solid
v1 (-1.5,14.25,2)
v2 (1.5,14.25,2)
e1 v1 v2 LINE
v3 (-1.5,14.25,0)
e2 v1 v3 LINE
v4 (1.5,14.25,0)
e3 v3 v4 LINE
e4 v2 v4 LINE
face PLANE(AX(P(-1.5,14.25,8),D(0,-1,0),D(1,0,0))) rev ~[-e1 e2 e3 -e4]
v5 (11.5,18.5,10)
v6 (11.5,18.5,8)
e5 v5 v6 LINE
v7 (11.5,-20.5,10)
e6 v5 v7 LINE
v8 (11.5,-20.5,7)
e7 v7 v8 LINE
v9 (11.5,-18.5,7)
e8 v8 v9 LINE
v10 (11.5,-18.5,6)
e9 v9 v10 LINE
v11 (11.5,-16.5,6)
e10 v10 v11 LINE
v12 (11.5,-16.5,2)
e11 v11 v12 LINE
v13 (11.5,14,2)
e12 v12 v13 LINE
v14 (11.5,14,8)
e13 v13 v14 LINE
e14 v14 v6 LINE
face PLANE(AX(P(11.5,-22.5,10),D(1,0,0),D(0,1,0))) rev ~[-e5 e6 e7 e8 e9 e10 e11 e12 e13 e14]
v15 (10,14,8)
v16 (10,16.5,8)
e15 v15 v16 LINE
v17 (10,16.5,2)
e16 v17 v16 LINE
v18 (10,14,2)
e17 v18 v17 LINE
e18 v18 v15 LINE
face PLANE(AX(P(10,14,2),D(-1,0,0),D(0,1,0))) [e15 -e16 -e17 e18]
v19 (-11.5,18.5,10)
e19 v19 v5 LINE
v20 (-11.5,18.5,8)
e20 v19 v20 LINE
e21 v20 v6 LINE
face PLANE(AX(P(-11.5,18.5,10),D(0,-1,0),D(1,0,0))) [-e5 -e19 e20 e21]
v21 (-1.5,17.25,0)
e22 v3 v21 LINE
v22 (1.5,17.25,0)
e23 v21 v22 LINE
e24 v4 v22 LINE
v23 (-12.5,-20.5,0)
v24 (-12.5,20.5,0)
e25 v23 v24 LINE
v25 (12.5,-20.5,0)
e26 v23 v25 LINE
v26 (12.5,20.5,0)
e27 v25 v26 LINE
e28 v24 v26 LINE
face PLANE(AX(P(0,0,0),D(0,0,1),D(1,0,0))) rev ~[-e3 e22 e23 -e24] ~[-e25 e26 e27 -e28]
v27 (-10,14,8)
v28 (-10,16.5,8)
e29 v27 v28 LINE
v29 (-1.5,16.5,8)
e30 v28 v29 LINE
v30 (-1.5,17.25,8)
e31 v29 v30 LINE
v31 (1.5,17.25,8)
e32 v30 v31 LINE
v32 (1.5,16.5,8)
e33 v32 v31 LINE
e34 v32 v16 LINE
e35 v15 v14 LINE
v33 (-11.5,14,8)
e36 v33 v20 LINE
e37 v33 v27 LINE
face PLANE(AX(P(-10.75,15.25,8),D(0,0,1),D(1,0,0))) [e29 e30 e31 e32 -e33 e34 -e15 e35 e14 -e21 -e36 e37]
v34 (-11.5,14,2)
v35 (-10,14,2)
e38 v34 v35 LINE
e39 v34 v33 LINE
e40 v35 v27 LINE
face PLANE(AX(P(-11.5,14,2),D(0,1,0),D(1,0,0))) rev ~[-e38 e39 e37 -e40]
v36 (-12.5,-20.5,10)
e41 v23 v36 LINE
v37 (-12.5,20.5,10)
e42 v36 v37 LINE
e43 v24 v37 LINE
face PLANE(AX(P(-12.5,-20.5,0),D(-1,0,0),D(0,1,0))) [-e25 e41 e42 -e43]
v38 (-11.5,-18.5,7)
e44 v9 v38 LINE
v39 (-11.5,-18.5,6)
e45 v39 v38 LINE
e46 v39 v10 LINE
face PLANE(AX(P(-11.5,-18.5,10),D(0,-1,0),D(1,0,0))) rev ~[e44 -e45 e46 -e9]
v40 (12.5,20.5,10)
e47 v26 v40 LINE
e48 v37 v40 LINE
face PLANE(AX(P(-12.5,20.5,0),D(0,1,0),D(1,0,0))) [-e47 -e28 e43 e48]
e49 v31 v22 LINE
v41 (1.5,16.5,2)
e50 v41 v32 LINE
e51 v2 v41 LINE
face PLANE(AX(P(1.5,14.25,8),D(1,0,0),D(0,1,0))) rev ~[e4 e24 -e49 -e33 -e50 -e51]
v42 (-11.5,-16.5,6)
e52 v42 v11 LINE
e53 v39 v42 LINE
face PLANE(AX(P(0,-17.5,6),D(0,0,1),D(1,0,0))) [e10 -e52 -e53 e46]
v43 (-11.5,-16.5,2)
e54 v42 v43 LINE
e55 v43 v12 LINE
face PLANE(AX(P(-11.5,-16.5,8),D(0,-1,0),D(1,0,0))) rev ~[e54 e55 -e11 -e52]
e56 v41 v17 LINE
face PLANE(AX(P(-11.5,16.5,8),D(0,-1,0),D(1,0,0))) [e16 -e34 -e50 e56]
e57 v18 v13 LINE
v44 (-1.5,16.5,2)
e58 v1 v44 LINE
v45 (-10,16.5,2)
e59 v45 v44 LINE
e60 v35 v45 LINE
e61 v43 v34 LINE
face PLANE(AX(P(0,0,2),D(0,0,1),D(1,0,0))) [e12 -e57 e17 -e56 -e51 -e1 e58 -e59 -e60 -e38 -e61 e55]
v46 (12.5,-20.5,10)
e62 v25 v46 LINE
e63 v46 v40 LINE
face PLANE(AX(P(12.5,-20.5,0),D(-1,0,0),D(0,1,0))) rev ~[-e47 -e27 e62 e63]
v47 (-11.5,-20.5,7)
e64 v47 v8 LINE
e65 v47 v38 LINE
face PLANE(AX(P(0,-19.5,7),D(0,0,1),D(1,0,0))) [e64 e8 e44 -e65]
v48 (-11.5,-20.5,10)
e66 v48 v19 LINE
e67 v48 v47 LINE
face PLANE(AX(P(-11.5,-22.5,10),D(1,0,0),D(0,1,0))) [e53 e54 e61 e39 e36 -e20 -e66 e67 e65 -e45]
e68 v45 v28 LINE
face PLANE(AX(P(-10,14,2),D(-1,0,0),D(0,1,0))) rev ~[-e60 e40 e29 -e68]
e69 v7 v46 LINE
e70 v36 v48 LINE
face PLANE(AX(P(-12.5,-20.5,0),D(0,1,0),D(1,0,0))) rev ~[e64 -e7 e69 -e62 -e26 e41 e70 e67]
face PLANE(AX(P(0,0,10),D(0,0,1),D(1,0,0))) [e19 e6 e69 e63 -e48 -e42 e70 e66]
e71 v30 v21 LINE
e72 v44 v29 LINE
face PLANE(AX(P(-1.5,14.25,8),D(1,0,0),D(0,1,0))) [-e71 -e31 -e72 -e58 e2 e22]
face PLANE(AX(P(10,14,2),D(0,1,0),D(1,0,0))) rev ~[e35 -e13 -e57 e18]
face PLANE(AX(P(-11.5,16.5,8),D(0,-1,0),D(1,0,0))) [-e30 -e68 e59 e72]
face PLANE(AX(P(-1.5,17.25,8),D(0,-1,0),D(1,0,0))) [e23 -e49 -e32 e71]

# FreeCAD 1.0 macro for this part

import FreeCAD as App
import Part
import Sketcher
from FreeCAD import Vector
Q = App.Units.Quantity

doc = App.newDocument("Part")
body = doc.addObject("PartDesign::Body", "Body")

sketch1 = doc.addObject("Sketcher::SketchObject", "Sketch")
body.addObject(sketch1)
sketch1.AttachmentSupport = (doc.XY_Plane, [""])
sketch1.MapMode = "FlatFace"
sketch1.addGeometry([
    Part.LineSegment(Vector(-12, 20, 0), Vector(-12, -20, 0)),
    Part.LineSegment(Vector(-12, -20, 0), Vector(12, -20, 0)),
    Part.LineSegment(Vector(12, -20, 0), Vector(12, 20, 0)),
    Part.LineSegment(Vector(12, 20, 0), Vector(-12, 20, 0)),
], False)
sketch1.addConstraint([
    Sketcher.Constraint("Coincident", 0, 2, 1, 1),
    Sketcher.Constraint("Coincident", 1, 2, 2, 1),
    Sketcher.Constraint("Coincident", 2, 2, 3, 1),
    Sketcher.Constraint("Coincident", 3, 2, 0, 1),
    Sketcher.Constraint("Vertical", 0),
    Sketcher.Constraint("Horizontal", 1),
    Sketcher.Constraint("Vertical", 2),
    Sketcher.Constraint("Horizontal", 3),
    Sketcher.Constraint("Symmetric", 0, 2, 2, 2, -1, 1),
    Sketcher.Constraint("DistanceX", 1, 1, 1, 2, Q("25 mm")),
    Sketcher.Constraint("DistanceY", 0, 2, 0, 1, Q("41 mm")),
])
pad1 = doc.addObject("PartDesign::Pad", "Pad")
body.addObject(pad1)
pad1.Profile = sketch1
pad1.Length = 10

sketch2 = doc.addObject("Sketcher::SketchObject", "Sketch001")
body.addObject(sketch2)
sketch2.AttachmentSupport = (doc.XY_Plane, [""])
sketch2.MapMode = "FlatFace"
sketch2.AttachmentOffset = App.Placement(Vector(0, 0, 10), App.Rotation())
sketch2.addGeometry([
    Part.LineSegment(Vector(-12, 18, 0), Vector(-12, -18, 0)),
    Part.LineSegment(Vector(-12, -18, 0), Vector(12, -18, 0)),
    Part.LineSegment(Vector(12, -18, 0), Vector(12, 18, 0)),
    Part.LineSegment(Vector(12, 18, 0), Vector(-12, 18, 0)),
], False)
sketch2.addConstraint([
    Sketcher.Constraint("Coincident", 0, 2, 1, 1),
    Sketcher.Constraint("Coincident", 1, 2, 2, 1),
    Sketcher.Constraint("Coincident", 2, 2, 3, 1),
    Sketcher.Constraint("Coincident", 3, 2, 0, 1),
    Sketcher.Constraint("Vertical", 0),
    Sketcher.Constraint("Horizontal", 1),
    Sketcher.Constraint("Vertical", 2),
    Sketcher.Constraint("Horizontal", 3),
    Sketcher.Constraint("Symmetric", 0, 2, 2, 2, -1, 1),
    Sketcher.Constraint("DistanceX", 1, 1, 1, 2, Q("23 mm")),
    Sketcher.Constraint("DistanceY", 0, 2, 0, 1, Q("37 mm")),
])
pocket1 = doc.addObject("PartDesign::Pocket", "Pocket")
body.addObject(pocket1)
pocket1.Profile = sketch2
pocket1.Length = 2

sketch3 = doc.addObject("Sketcher::SketchObject", "Sketch002")
body.addObject(sketch3)
sketch3.AttachmentSupport = (doc.XY_Plane, [""])
sketch3.MapMode = "FlatFace"
sketch3.AttachmentOffset = App.Placement(Vector(0, 0, 8), App.Rotation())
sketch3.addGeometry([
    Part.LineSegment(Vector(-12, 16, 0), Vector(-12, -16, 0)),
    Part.LineSegment(Vector(-12, -16, 0), Vector(12, -16, 0)),
    Part.LineSegment(Vector(12, -16, 0), Vector(12, 16, 0)),
    Part.LineSegment(Vector(12, 16, 0), Vector(-12, 16, 0)),
], False)
sketch3.addConstraint([
    Sketcher.Constraint("Coincident", 0, 2, 1, 1),
    Sketcher.Constraint("Coincident", 1, 2, 2, 1),
    Sketcher.Constraint("Coincident", 2, 2, 3, 1),
    Sketcher.Constraint("Coincident", 3, 2, 0, 1),
    Sketcher.Constraint("Vertical", 0),
    Sketcher.Constraint("Horizontal", 1),
    Sketcher.Constraint("Vertical", 2),
    Sketcher.Constraint("Horizontal", 3),
    Sketcher.Constraint("Symmetric", 0, 2, 2, 2, -1, 1),
    Sketcher.Constraint("DistanceX", 1, 1, 1, 2, Q("23 mm")),
    Sketcher.Constraint("DistanceY", 0, 2, 0, 1, Q("33 mm")),
])
pocket2 = doc.addObject("PartDesign::Pocket", "Pocket001")
body.addObject(pocket2)
pocket2.Profile = sketch3
pocket2.Length = 6

sketch4 = doc.addObject("Sketcher::SketchObject", "Sketch003")
body.addObject(sketch4)
sketch4.AttachmentSupport = (doc.XY_Plane, [""])
sketch4.MapMode = "FlatFace"
sketch4.AttachmentOffset = App.Placement(Vector(0, 0, 10), App.Rotation())
sketch4.addGeometry([
    Part.LineSegment(Vector(-11.5, -16.5, 0), Vector(-11.5, -18.5, 0)),
    Part.LineSegment(Vector(-11.5, -18.5, 0), Vector(11.5, -18.5, 0)),
    Part.LineSegment(Vector(11.5, -18.5, 0), Vector(11.5, -16.5, 0)),
    Part.LineSegment(Vector(11.5, -16.5, 0), Vector(-11.5, -16.5, 0)),
], False)
sketch4.addConstraint([
    Sketcher.Constraint("Coincident", 0, 2, 1, 1),
    Sketcher.Constraint("Coincident", 1, 2, 2, 1),
    Sketcher.Constraint("Coincident", 2, 2, 3, 1),
    Sketcher.Constraint("Coincident", 3, 2, 0, 1),
    Sketcher.Constraint("Vertical", 0),
    Sketcher.Constraint("Horizontal", 1),
    Sketcher.Constraint("Vertical", 2),
    Sketcher.Constraint("Horizontal", 3),
    Sketcher.Constraint("DistanceX", 1, 1, 1, 2, Q("23 mm")),
    Sketcher.Constraint("DistanceY", 0, 2, 0, 1, Q("2 mm")),
    Sketcher.Constraint("DistanceX", 0, 2, -1, 1, Q("11.5 mm")),
    Sketcher.Constraint("DistanceY", 0, 2, -1, 1, Q("18.5 mm")),
])
pocket3 = doc.addObject("PartDesign::Pocket", "Pocket002")
body.addObject(pocket3)
pocket3.Profile = sketch4
pocket3.Length = 4

sketch5 = doc.addObject("Sketcher::SketchObject", "Sketch004")
body.addObject(sketch5)
sketch5.AttachmentSupport = (doc.XY_Plane, [""])
sketch5.MapMode = "FlatFace"
sketch5.AttachmentOffset = App.Placement(Vector(0, 0, 10), App.Rotation())
sketch5.addGeometry([
    Part.LineSegment(Vector(-12, -16, 0), Vector(-12, -22, 0)),
    Part.LineSegment(Vector(-12, -22, 0), Vector(12, -22, 0)),
    Part.LineSegment(Vector(12, -22, 0), Vector(12, -16, 0)),
    Part.LineSegment(Vector(12, -16, 0), Vector(-12, -16, 0)),
], False)
sketch5.addConstraint([
    Sketcher.Constraint("Coincident", 0, 2, 1, 1),
    Sketcher.Constraint("Coincident", 1, 2, 2, 1),
    Sketcher.Constraint("Coincident", 2, 2, 3, 1),
    Sketcher.Constraint("Coincident", 3, 2, 0, 1),
    Sketcher.Constraint("Vertical", 0),
    Sketcher.Constraint("Horizontal", 1),
    Sketcher.Constraint("Vertical", 2),
    Sketcher.Constraint("Horizontal", 3),
    Sketcher.Constraint("DistanceX", 1, 1, 1, 2, Q("23 mm")),
    Sketcher.Constraint("DistanceY", 0, 2, 0, 1, Q("6 mm")),
    Sketcher.Constraint("DistanceX", 0, 2, -1, 1, Q("11.5 mm")),
    Sketcher.Constraint("DistanceY", 0, 2, -1, 1, Q("22.5 mm")),
])
pocket4 = doc.addObject("PartDesign::Pocket", "Pocket003")
body.addObject(pocket4)
pocket4.Profile = sketch5
pocket4.Length = 3

sketch6 = doc.addObject("Sketcher::SketchObject", "Sketch005")
body.addObject(sketch6)
sketch6.AttachmentSupport = (doc.XY_Plane, [""])
sketch6.MapMode = "FlatFace"
sketch6.AttachmentOffset = App.Placement(Vector(0, 0, 8), App.Rotation())
sketch6.addGeometry([
    Part.LineSegment(Vector(-1.5, 17.2, 0), Vector(-1.5, 14.2, 0)),
    Part.LineSegment(Vector(-1.5, 14.2, 0), Vector(1.5, 14.2, 0)),
    Part.LineSegment(Vector(1.5, 14.2, 0), Vector(1.5, 17.2, 0)),
    Part.LineSegment(Vector(1.5, 17.2, 0), Vector(-1.5, 17.2, 0)),
], False)
sketch6.addConstraint([
    Sketcher.Constraint("Coincident", 0, 2, 1, 1),
    Sketcher.Constraint("Coincident", 1, 2, 2, 1),
    Sketcher.Constraint("Coincident", 2, 2, 3, 1),
    Sketcher.Constraint("Coincident", 3, 2, 0, 1),
    Sketcher.Constraint("Vertical", 0),
    Sketcher.Constraint("Horizontal", 1),
    Sketcher.Constraint("Vertical", 2),
    Sketcher.Constraint("Horizontal", 3),
    Sketcher.Constraint("Equal", 3, 0),
    Sketcher.Constraint("DistanceX", 1, 1, 1, 2, Q("3 mm")),
    Sketcher.Constraint("DistanceX", 0, 2, -1, 1, Q("1.5 mm")),
    Sketcher.Constraint("DistanceY", -1, 1, 0, 2, Q("14.25 mm")),
])
pocket5 = doc.addObject("PartDesign::Pocket", "Pocket004")
body.addObject(pocket5)
pocket5.Profile = sketch6
pocket5.Type = "ThroughAll"

sketch7 = doc.addObject("Sketcher::SketchObject", "Sketch006")
body.addObject(sketch7)
sketch7.AttachmentSupport = (doc.XY_Plane, [""])
sketch7.MapMode = "FlatFace"
sketch7.AttachmentOffset = App.Placement(Vector(0, 0, 2), App.Rotation())
sketch7.addGeometry([
    Part.LineSegment(Vector(-11.5, 16.5, 0), Vector(-11.5, 14, 0)),
    Part.LineSegment(Vector(-11.5, 14, 0), Vector(-10, 14, 0)),
    Part.LineSegment(Vector(-10, 14, 0), Vector(-10, 16.5, 0)),
    Part.LineSegment(Vector(-10, 16.5, 0), Vector(-11.5, 16.5, 0)),
    Part.LineSegment(Vector(10, 16.5, 0), Vector(10, 14, 0)),
    Part.LineSegment(Vector(10, 14, 0), Vector(11.5, 14, 0)),
    Part.LineSegment(Vector(11.5, 14, 0), Vector(11.5, 16.5, 0)),
    Part.LineSegment(Vector(11.5, 16.5, 0), Vector(10, 16.5, 0)),
], False)
sketch7.addConstraint([
    Sketcher.Constraint("Coincident", 0, 2, 1, 1),
    Sketcher.Constraint("Coincident", 1, 2, 2, 1),
    Sketcher.Constraint("Coincident", 2, 2, 3, 1),
    Sketcher.Constraint("Coincident", 3, 2, 0, 1),
    Sketcher.Constraint("Coincident", 4, 2, 5, 1),
    Sketcher.Constraint("Coincident", 5, 2, 6, 1),
    Sketcher.Constraint("Coincident", 6, 2, 7, 1),
    Sketcher.Constraint("Coincident", 7, 2, 4, 1),
    Sketcher.Constraint("Vertical", 0),
    Sketcher.Constraint("Horizontal", 1),
    Sketcher.Constraint("Vertical", 2),
    Sketcher.Constraint("Horizontal", 3),
    Sketcher.Constraint("Vertical", 4),
    Sketcher.Constraint("Horizontal", 5),
    Sketcher.Constraint("Vertical", 6),
    Sketcher.Constraint("Horizontal", 7),
    Sketcher.Constraint("Symmetric", 1, 2, 4, 2, -2),
    Sketcher.Constraint("Symmetric", 3, 2, 6, 2, -2),
    Sketcher.Constraint("DistanceX", 1, 1, 1, 2, Q("1.5 mm")),
    Sketcher.Constraint("DistanceY", 0, 2, 0, 1, Q("2.5 mm")),
    Sketcher.Constraint("DistanceY", -1, 1, 0, 2, Q("14 mm")),
    Sketcher.Constraint("DistanceX", 1, 2, -1, 1, Q("10 mm")),
])
pad2 = doc.addObject("PartDesign::Pad", "Pad001")
body.addObject(pad2)
pad2.Profile = sketch7
pad2.Length = 6

doc.recompute()
